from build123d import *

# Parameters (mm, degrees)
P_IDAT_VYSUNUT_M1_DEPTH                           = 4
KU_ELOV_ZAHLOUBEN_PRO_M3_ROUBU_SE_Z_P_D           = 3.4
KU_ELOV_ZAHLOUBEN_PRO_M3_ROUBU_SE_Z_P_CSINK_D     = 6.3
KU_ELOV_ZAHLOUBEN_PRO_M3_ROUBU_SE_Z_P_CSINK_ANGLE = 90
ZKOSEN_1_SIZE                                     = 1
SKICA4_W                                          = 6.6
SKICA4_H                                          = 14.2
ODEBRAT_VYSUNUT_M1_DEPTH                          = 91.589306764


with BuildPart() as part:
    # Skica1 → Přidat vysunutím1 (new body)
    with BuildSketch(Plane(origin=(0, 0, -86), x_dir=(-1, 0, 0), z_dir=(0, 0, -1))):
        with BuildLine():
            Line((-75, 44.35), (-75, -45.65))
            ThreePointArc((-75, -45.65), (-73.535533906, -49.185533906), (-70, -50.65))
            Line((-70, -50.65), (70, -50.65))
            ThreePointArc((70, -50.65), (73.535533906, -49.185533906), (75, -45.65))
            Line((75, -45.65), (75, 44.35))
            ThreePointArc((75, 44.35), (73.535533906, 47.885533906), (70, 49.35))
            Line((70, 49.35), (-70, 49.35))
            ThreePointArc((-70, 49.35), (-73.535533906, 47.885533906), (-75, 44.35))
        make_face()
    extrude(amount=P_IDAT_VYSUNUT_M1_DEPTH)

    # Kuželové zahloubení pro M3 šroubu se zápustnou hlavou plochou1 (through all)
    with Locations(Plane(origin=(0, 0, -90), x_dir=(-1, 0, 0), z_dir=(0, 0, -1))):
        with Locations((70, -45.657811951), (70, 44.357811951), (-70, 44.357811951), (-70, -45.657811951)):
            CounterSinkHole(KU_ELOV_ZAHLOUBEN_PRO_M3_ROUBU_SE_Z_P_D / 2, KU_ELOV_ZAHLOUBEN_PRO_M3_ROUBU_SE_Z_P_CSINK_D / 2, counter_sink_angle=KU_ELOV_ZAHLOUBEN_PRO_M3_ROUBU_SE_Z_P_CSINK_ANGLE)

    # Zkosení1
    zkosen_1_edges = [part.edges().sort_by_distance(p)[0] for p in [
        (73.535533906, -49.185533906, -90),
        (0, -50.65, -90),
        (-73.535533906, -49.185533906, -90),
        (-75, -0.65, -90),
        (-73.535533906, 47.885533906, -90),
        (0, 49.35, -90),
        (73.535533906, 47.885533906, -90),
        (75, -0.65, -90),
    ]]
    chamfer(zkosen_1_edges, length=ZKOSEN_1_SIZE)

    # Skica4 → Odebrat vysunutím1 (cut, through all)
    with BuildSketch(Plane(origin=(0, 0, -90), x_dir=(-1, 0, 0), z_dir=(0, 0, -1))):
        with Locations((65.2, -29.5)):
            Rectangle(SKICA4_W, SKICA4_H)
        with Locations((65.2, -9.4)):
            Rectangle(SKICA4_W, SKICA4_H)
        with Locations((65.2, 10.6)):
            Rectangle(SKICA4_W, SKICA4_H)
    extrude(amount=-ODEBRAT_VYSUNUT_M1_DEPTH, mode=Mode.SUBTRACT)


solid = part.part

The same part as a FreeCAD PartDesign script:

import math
import FreeCAD as App
import Part
import Sketcher
from FreeCAD import Vector
Q = App.Units.Quantity


def edges_at(feature, points):
    """Names of the edges that pass closest to the given points."""
    edges = feature.Shape.Edges
    near = lambda p: min(range(len(edges)), key=lambda i: edges[i].distToShape(Part.Vertex(*p))[0])
    return sorted({f"Edge{near(p) + 1}" for p in points})


def add_polygon(sketch, points):
    """Adds a closed chain of lines whose ends are joined by coincident constraints."""
    first, n = sketch.GeometryCount, len(points)
    for a, b in zip(points, points[1:] + points[:1]):
        sketch.addGeometry(Part.LineSegment(App.Vector(*a, 0), App.Vector(*b, 0)), False)
    for i in range(n):
        sketch.addConstraint(Sketcher.Constraint("Coincident", first + i, 2, first + (i + 1) % n, 1))

doc = App.newDocument("Part")
body = doc.addObject("PartDesign::Body", "Body")

sketch1 = doc.addObject("Sketcher::SketchObject", "Sketch")
body.addObject(sketch1)
sketch1.AttachmentSupport = (doc.XY_Plane, [""])
sketch1.MapMode = "FlatFace"
sketch1.AttachmentOffset = App.Placement(Vector(0, 0, -86), App.Rotation())
sketch1.addGeometry(Part.LineSegment(Vector(75, 44, 0), Vector(75, -46, 0)), False)
sketch1.addGeometry(Part.ArcOfCircle(Part.Circle(Vector(70, -46, 0), Vector(0, 0, 1), 5), math.radians(-90), math.radians(0)), False)
sketch1.addGeometry(Part.LineSegment(Vector(70, -51, 0), Vector(-70, -51, 0)), False)
sketch1.addGeometry(Part.ArcOfCircle(Part.Circle(Vector(-70, -46, 0), Vector(0, 0, 1), 5), math.radians(180), math.radians(270)), False)
sketch1.addGeometry(Part.LineSegment(Vector(-75, -46, 0), Vector(-75, 44, 0)), False)
sketch1.addGeometry(Part.ArcOfCircle(Part.Circle(Vector(-70, 44, 0), Vector(0, 0, 1), 5), math.radians(90), math.radians(180)), False)
sketch1.addGeometry(Part.LineSegment(Vector(-70, 49, 0), Vector(70, 49, 0)), False)
sketch1.addGeometry(Part.ArcOfCircle(Part.Circle(Vector(70, 44, 0), Vector(0, 0, 1), 5), math.radians(0), math.radians(90)), False)
sketch1.addConstraint(Sketcher.Constraint("Tangent", 0, 2, 1, 2))
sketch1.addConstraint(Sketcher.Constraint("Tangent", 1, 1, 2, 1))
sketch1.addConstraint(Sketcher.Constraint("Tangent", 2, 2, 3, 2))
sketch1.addConstraint(Sketcher.Constraint("Tangent", 3, 1, 4, 1))
sketch1.addConstraint(Sketcher.Constraint("Tangent", 4, 2, 5, 2))
sketch1.addConstraint(Sketcher.Constraint("Tangent", 5, 1, 6, 1))
sketch1.addConstraint(Sketcher.Constraint("Tangent", 6, 2, 7, 2))
sketch1.addConstraint(Sketcher.Constraint("Tangent", 7, 1, 0, 1))
sketch1.addConstraint(Sketcher.Constraint("Vertical", 0))
sketch1.addConstraint(Sketcher.Constraint("Horizontal", 2))
sketch1.addConstraint(Sketcher.Constraint("Vertical", 4))
sketch1.addConstraint(Sketcher.Constraint("Horizontal", 6))
sketch1.addConstraint(Sketcher.Constraint("Equal", 1, 3))
sketch1.addConstraint(Sketcher.Constraint("Equal", 3, 5))
sketch1.addConstraint(Sketcher.Constraint("Equal", 5, 7))
sketch1.addConstraint(Sketcher.Constraint("Radius", 1, Q("5 mm")))
sketch1.addConstraint(Sketcher.Constraint("DistanceX", 2, 2, 2, 1, Q("140 mm")))
sketch1.addConstraint(Sketcher.Constraint("DistanceY", 0, 2, 0, 1, Q("90 mm")))
sketch1.addConstraint(Sketcher.Constraint("DistanceX", -1, 1, 1, 3, Q("70 mm")))
sketch1.addConstraint(Sketcher.Constraint("DistanceY", 1, 3, -1, 1, Q("45.65 mm")))
pad1 = doc.addObject("PartDesign::Pad", "Pad")
body.addObject(pad1)
pad1.Profile = sketch1
pad1.Length = 4
pad1.Reversed = True

sketch2 = doc.addObject("Sketcher::SketchObject", "Sketch001")
body.addObject(sketch2)
sketch2.AttachmentSupport = (doc.XY_Plane, [""])
sketch2.MapMode = "FlatFace"
sketch2.AttachmentOffset = App.Placement(Vector(0, 0, -90), App.Rotation())
sketch2.addGeometry(Part.Circle(Vector(-70, -45.7, 0), Vector(0, 0, 1), 1.7), False)
sketch2.addGeometry(Part.Circle(Vector(-70, 44.4, 0), Vector(0, 0, 1), 1.7), False)
sketch2.addGeometry(Part.Circle(Vector(70, 44.4, 0), Vector(0, 0, 1), 1.7), False)
sketch2.addGeometry(Part.Circle(Vector(70, -45.7, 0), Vector(0, 0, 1), 1.7), False)
sketch2.addConstraint(Sketcher.Constraint("Equal", 0, 1))
sketch2.addConstraint(Sketcher.Constraint("Equal", 1, 2))
sketch2.addConstraint(Sketcher.Constraint("Equal", 2, 3))
sketch2.addConstraint(Sketcher.Constraint("Symmetric", 1, 3, 2, 3, -2))
sketch2.addConstraint(Sketcher.Constraint("Symmetric", 0, 3, 3, 3, -2))
sketch2.addConstraint(Sketcher.Constraint("Vertical", 0, 3, 1, 3))
sketch2.addConstraint(Sketcher.Constraint("Diameter", 0, Q("3.4 mm")))
sketch2.addConstraint(Sketcher.Constraint("DistanceX", 0, 3, -1, 1, Q("70 mm")))
sketch2.addConstraint(Sketcher.Constraint("DistanceY", 0, 3, -1, 1, Q("45.657812 mm")))
sketch2.addConstraint(Sketcher.Constraint("DistanceY", -1, 1, 1, 3, Q("44.357812 mm")))
doc.recompute()
hole = doc.addObject("PartDesign::Hole", "Hole")
body.addObject(hole)
hole.Profile = sketch2
hole.ThreadType = "None"
hole.Diameter = 3.4
hole.DepthType = "ThroughAll"
hole.HoleCutType = "Countersink"
hole.HoleCutDiameter = 6.3
hole.HoleCutCountersinkAngle = 90
hole.Reversed = True
doc.recompute()

chamfer = doc.addObject("PartDesign::Chamfer", "Chamfer")
body.addObject(chamfer)
chamfer.Base = (hole, edges_at(hole, [
    (73.536, -49.186, -90),
    (0, -50.65, -90),
    (-73.536, -49.186, -90),
    (-75, -0.65, -90),
    (-73.536, 47.886, -90),
    (0, 49.35, -90),
    (73.536, 47.886, -90),
    (75, -0.65, -90),
]))
chamfer.Size = 1

sketch3 = doc.addObject("Sketcher::SketchObject", "Sketch002")
body.addObject(sketch3)
sketch3.AttachmentSupport = (doc.XY_Plane, [""])
sketch3.MapMode = "FlatFace"
sketch3.AttachmentOffset = App.Placement(Vector(0, 0, -90), App.Rotation())
add_polygon(sketch3, [(-62, -22), (-62, -37), (-68, -37), (-68, -22)])
add_polygon(sketch3, [(-62, -2), (-62, -16), (-68, -16), (-68, -2)])
add_polygon(sketch3, [(-62, 18), (-62, 4), (-68, 4), (-68, 18)])
sketch3.addConstraint(Sketcher.Constraint("Vertical", 0))
sketch3.addConstraint(Sketcher.Constraint("Horizontal", 1))
sketch3.addConstraint(Sketcher.Constraint("Vertical", 2))
sketch3.addConstraint(Sketcher.Constraint("Horizontal", 3))
sketch3.addConstraint(Sketcher.Constraint("Vertical", 4))
sketch3.addConstraint(Sketcher.Constraint("Horizontal", 5))
sketch3.addConstraint(Sketcher.Constraint("Vertical", 6))
sketch3.addConstraint(Sketcher.Constraint("Horizontal", 7))
sketch3.addConstraint(Sketcher.Constraint("Vertical", 8))
sketch3.addConstraint(Sketcher.Constraint("Horizontal", 9))
sketch3.addConstraint(Sketcher.Constraint("Vertical", 10))
sketch3.addConstraint(Sketcher.Constraint("Horizontal", 11))
sketch3.addConstraint(Sketcher.Constraint("Vertical", 3, 2, 4, 2))
sketch3.addConstraint(Sketcher.Constraint("Vertical", 2, 2, 5, 2))
sketch3.addConstraint(Sketcher.Constraint("Vertical", 7, 2, 8, 2))
sketch3.addConstraint(Sketcher.Constraint("Vertical", 6, 2, 9, 2))
sketch3.addConstraint(Sketcher.Constraint("Equal", 2, 4))
sketch3.addConstraint(Sketcher.Constraint("Equal", 6, 8))
sketch3.addConstraint(Sketcher.Constraint("DistanceX", 1, 2, 1, 1, Q("6.6 mm")))
sketch3.addConstraint(Sketcher.Constraint("DistanceY", 0, 2, 0, 1, Q("14.2 mm")))
sketch3.addConstraint(Sketcher.Constraint("DistanceY", 4, 2, 8, 2, Q("20 mm")))
sketch3.addConstraint(Sketcher.Constraint("DistanceX", 0, 2, -1, 1, Q("61.9 mm")))
sketch3.addConstraint(Sketcher.Constraint("DistanceY", 0, 2, -1, 1, Q("36.6 mm")))
sketch3.addConstraint(Sketcher.Constraint("DistanceY", 4, 2, -1, 1, Q("16.5 mm")))
pocket1 = doc.addObject("PartDesign::Pocket", "Pocket")
body.addObject(pocket1)
pocket1.Profile = sketch3
pocket1.Type = "ThroughAll"
pocket1.Reversed = True

doc.recompute()
